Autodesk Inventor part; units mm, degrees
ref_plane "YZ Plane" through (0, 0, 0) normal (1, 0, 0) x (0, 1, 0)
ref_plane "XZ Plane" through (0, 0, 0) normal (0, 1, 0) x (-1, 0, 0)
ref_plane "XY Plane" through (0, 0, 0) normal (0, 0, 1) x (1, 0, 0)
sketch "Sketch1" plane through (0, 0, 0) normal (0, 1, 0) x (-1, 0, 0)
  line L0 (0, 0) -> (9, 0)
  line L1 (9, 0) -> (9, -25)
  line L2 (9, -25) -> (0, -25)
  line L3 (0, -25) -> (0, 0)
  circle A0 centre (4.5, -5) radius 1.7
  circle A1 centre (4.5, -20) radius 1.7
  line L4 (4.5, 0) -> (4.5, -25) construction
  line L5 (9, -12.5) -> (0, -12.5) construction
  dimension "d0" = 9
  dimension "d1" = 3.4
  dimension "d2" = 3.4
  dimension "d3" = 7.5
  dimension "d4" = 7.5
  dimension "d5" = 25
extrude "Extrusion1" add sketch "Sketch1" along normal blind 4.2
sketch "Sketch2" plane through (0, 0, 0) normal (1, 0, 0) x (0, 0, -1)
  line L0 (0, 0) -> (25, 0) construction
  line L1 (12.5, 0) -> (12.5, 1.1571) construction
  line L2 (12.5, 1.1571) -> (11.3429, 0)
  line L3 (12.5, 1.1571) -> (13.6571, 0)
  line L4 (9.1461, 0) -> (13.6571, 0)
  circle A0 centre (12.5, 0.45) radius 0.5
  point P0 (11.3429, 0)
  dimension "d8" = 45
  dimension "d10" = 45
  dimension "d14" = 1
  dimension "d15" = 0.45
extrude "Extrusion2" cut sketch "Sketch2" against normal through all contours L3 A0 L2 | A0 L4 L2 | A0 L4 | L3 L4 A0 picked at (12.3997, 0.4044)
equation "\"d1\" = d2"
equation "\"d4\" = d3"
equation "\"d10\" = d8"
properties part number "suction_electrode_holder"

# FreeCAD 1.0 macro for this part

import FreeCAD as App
import Part
import Sketcher
from FreeCAD import Vector
Q = App.Units.Quantity

doc = App.newDocument("Part")
body = doc.addObject("PartDesign::Body", "Body")

sketch1 = body.newObject("Sketcher::SketchObject", "Sketch")
sketch1.AttachmentSupport = (doc.getObject("XZ_Plane"), [""])
sketch1.MapMode = "FlatFace"
sketch1.addGeometry(Part.LineSegment(Vector(-9, 0, 0), Vector(0, 0, 0)), False)
sketch1.addGeometry(Part.LineSegment(Vector(0, 0, 0), Vector(0, -25, 0)), False)
sketch1.addGeometry(Part.LineSegment(Vector(0, -25, 0), Vector(-9, -25, 0)), False)
sketch1.addGeometry(Part.LineSegment(Vector(-9, -25, 0), Vector(-9, 0, 0)), False)
sketch1.addGeometry(Part.Circle(Vector(-4.5, -20, 0), Vector(0, 0, 1), 1.7), False)
sketch1.addGeometry(Part.Circle(Vector(-4.5, -5, 0), Vector(0, 0, 1), 1.7), False)
sketch1.addConstraint(Sketcher.Constraint("Coincident", 0, 2, 1, 1))
sketch1.addConstraint(Sketcher.Constraint("Coincident", 1, 2, 2, 1))
sketch1.addConstraint(Sketcher.Constraint("Coincident", 2, 2, 3, 1))
sketch1.addConstraint(Sketcher.Constraint("Coincident", 3, 2, 0, 1))
sketch1.addConstraint(Sketcher.Constraint("Horizontal", 0))
sketch1.addConstraint(Sketcher.Constraint("Vertical", 1))
sketch1.addConstraint(Sketcher.Constraint("Horizontal", 2))
sketch1.addConstraint(Sketcher.Constraint("Vertical", 3))
sketch1.addConstraint(Sketcher.Constraint("Coincident", 0, 2, -1, 1))
sketch1.addConstraint(Sketcher.Constraint("Equal", 4, 5))
sketch1.addConstraint(Sketcher.Constraint("Vertical", 4, 3, 5, 3))
sketch1.addConstraint(Sketcher.Constraint("Diameter", 4, Q("3.4 mm")))
sketch1.addConstraint(Sketcher.Constraint("DistanceX", 0, 1, 0, 2, Q("9 mm")))
sketch1.addConstraint(Sketcher.Constraint("DistanceY", 1, 2, 1, 1, Q("25 mm")))
sketch1.addConstraint(Sketcher.Constraint("DistanceY", 4, 3, -1, 1, Q("20 mm")))
sketch1.addConstraint(Sketcher.Constraint("DistanceY", 5, 3, -1, 1, Q("5 mm")))
sketch1.addConstraint(Sketcher.Constraint("DistanceX", 4, 3, -1, 1, Q("4.5 mm")))
pad1 = body.newObject("PartDesign::Pad", "Pad")
pad1.Profile = sketch1
pad1.Length = 4.2
pad1.Reversed = True

sketch2 = body.newObject("Sketcher::SketchObject", "Sketch001")
sketch2.AttachmentSupport = (doc.getObject("YZ_Plane"), [""])
sketch2.MapMode = "FlatFace"
sketch2.addGeometry(Part.LineSegment(Vector(1.2, -12.5, 0), Vector(0, -11.3, 0)), False)
sketch2.addGeometry(Part.LineSegment(Vector(0, -11.3, 0), Vector(0, -13.7, 0)), False)
sketch2.addGeometry(Part.LineSegment(Vector(0, -13.7, 0), Vector(1.2, -12.5, 0)), False)
sketch2.addConstraint(Sketcher.Constraint("Coincident", 0, 2, 1, 1))
sketch2.addConstraint(Sketcher.Constraint("Coincident", 1, 2, 2, 1))
sketch2.addConstraint(Sketcher.Constraint("Coincident", 2, 2, 0, 1))
sketch2.addConstraint(Sketcher.Constraint("Vertical", 1))
sketch2.addConstraint(Sketcher.Constraint("PointOnObject", 0, 2, -2))
sketch2.addConstraint(Sketcher.Constraint("Perpendicular", 0, 2))
sketch2.addConstraint(Sketcher.Constraint("Equal", 0, 2))
sketch2.addConstraint(Sketcher.Constraint("DistanceY", 2, 2, -1, 1, Q("12.5 mm")))
sketch2.addConstraint(Sketcher.Constraint("DistanceY", 1, 2, 1, 1, Q("2.3142 mm")))
pocket1 = body.newObject("PartDesign::Pocket", "Pocket")
pocket1.Profile = sketch2
pocket1.Type = "ThroughAll"

doc.recompute()
